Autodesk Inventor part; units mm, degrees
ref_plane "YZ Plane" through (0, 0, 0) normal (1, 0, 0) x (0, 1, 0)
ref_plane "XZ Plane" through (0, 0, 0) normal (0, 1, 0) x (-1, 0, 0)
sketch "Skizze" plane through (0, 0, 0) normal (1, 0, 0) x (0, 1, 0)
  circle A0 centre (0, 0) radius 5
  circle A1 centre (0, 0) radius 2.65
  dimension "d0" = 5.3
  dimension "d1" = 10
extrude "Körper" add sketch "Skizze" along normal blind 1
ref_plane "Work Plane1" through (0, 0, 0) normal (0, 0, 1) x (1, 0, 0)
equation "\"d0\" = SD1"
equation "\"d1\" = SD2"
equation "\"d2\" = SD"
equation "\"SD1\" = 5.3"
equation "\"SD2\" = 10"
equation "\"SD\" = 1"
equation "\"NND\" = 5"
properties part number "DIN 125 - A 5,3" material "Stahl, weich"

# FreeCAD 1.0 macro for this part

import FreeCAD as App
import Part
import Sketcher

V = App.Vector

doc = App.newDocument("Part")
body = doc.addObject("PartDesign::Body", "Body")

# Sketch on YZ plane
sketch1 = doc.addObject("Sketcher::SketchObject", "Sketch")
body.addObject(sketch1)
sketch1.AttachmentSupport = (doc.YZ_Plane, [""])
sketch1.MapMode = "FlatFace"
sketch1.addGeometry(Part.Circle(V(0, 0, 0), V(0, 0, 1), 5), False)
sketch1.addGeometry(Part.Circle(V(0, 0, 0), V(0, 0, 1), 2.65), False)
sketch1.addConstraint(Sketcher.Constraint("Coincident", 0, 3, -1, 1))
sketch1.addConstraint(Sketcher.Constraint("Coincident", 1, 3, -1, 1))
sketch1.addConstraint(Sketcher.Constraint("Diameter", 0, 10.0))
sketch1.addConstraint(Sketcher.Constraint("Diameter", 1, 5.3))
pad1 = doc.addObject("PartDesign::Pad", "Pad")
body.addObject(pad1)
pad1.Profile = sketch1
pad1.Length = 1

doc.recompute()
